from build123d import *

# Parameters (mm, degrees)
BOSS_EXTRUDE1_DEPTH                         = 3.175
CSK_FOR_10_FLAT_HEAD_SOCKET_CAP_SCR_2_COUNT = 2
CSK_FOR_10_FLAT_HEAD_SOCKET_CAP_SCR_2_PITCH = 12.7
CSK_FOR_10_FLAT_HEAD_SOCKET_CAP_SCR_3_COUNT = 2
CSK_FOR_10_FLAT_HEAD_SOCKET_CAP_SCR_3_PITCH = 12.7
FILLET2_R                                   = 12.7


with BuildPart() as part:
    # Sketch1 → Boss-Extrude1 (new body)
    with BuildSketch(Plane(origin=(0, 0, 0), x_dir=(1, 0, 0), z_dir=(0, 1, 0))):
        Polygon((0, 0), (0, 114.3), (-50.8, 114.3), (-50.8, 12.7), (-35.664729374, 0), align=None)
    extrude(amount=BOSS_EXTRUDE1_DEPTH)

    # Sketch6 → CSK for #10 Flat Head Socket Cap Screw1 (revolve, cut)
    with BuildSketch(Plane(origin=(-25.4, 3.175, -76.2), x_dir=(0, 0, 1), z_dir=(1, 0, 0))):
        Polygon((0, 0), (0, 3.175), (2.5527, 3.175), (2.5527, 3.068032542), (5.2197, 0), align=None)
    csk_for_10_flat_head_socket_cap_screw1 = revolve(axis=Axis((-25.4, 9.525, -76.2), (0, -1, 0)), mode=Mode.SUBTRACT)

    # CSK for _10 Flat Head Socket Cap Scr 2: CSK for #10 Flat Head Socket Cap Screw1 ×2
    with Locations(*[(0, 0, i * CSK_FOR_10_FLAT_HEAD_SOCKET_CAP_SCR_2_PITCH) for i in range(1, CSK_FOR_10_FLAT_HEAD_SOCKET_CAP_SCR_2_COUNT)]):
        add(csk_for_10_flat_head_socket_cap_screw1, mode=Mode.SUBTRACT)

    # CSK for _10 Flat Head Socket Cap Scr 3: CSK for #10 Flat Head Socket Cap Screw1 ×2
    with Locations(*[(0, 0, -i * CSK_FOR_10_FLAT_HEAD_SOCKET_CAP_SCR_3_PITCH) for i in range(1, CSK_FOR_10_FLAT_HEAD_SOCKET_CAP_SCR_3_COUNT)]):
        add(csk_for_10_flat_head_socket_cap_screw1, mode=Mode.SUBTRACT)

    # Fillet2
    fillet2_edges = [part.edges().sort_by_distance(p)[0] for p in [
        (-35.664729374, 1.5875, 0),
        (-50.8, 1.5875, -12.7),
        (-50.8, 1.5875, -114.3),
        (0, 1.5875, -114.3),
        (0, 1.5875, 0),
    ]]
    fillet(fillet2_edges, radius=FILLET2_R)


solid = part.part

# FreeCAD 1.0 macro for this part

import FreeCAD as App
import Part
import Sketcher

V = App.Vector
Q = App.Units.Quantity


def edges_at(feature, points):
    """Names of the edges that pass closest to the given points."""
    edges = feature.Shape.Edges
    near = lambda p: min(range(len(edges)), key=lambda i: edges[i].distToShape(Part.Vertex(*p))[0])
    return sorted({f"Edge{near(p) + 1}" for p in points})

doc = App.newDocument("Part")
body = doc.addObject("PartDesign::Body", "Body")

# Sketch on XZ plane
sketch1 = body.newObject("Sketcher::SketchObject", "Sketch")
sketch1.AttachmentSupport = (doc.getObject("XZ_Plane"), [""])
sketch1.MapMode = "FlatFace"
sketch1.addGeometry([
    Part.LineSegment(V(0, 0, 0), V(0, -114, 0)),  # 0
    Part.LineSegment(V(0, -114, 0), V(-51, -114, 0)),  # 1
    Part.LineSegment(V(-51, -114, 0), V(-51, -13, 0)),  # 2
    Part.LineSegment(V(-51, -13, 0), V(-36, 0, 0)),  # 3
    Part.LineSegment(V(-36, 0, 0), V(0, 0, 0)),  # 4
], False)
sketch1.addConstraint([
    Sketcher.Constraint("Coincident", 0, 2, 1, 1),
    Sketcher.Constraint("Coincident", 1, 2, 2, 1),
    Sketcher.Constraint("Coincident", 2, 2, 3, 1),
    Sketcher.Constraint("Coincident", 3, 2, 4, 1),
    Sketcher.Constraint("Coincident", 4, 2, 0, 1),
    Sketcher.Constraint("Vertical", 0),
    Sketcher.Constraint("Horizontal", 1),
    Sketcher.Constraint("Vertical", 2),
    Sketcher.Constraint("Horizontal", 4),
    Sketcher.Constraint("Coincident", 4, 2, -1, 1),
    Sketcher.Constraint("DistanceX", 1, 2, 1, 1, Q("2 in")),
    Sketcher.Constraint("DistanceY", 2, 1, 2, 2, Q("4 in")),
    Sketcher.Constraint("DistanceY", 0, 2, 0, 1, Q("4.5 in")),
    Sketcher.Constraint("Angle", 3, Q("40 deg")),
])
pad1 = body.newObject("PartDesign::Pad", "Pad")
pad1.Profile = sketch1
pad1.Length = Q("0.125 in")
pad1.Reversed = True

# Sketch on YZ plane
sketch2 = body.newObject("Sketcher::SketchObject", "Sketch001")
sketch2.AttachmentSupport = (doc.getObject("YZ_Plane"), [""])
sketch2.MapMode = "FlatFace"
sketch2.AttachmentOffset = App.Placement(V(0, 0, -1 * 25.4), App.Rotation())
sketch2.addGeometry([
    Part.LineSegment(V(0, -76.2, 0), V(3.17, -76.2, 0)),  # 0
    Part.LineSegment(V(3.17, -76.2, 0), V(3.17, -70.98, 0)),  # 1
    Part.LineSegment(V(3.17, -70.98, 0), V(0.11, -73.65, 0)),  # 2
    Part.LineSegment(V(0.11, -73.65, 0), V(0, -73.65, 0)),  # 3
    Part.LineSegment(V(0, -73.65, 0), V(0, -76.2, 0)),  # 4
], False)
sketch2.addGeometry(Part.LineSegment(V(3.17, -76.2, 0), V(0, -76.2, 0)), True)  # axis
sketch2.addConstraint([
    Sketcher.Constraint("Coincident", 0, 2, 1, 1),
    Sketcher.Constraint("Coincident", 1, 2, 2, 1),
    Sketcher.Constraint("Coincident", 2, 2, 3, 1),
    Sketcher.Constraint("Coincident", 3, 2, 4, 1),
    Sketcher.Constraint("Coincident", 4, 2, 0, 1),
    Sketcher.Constraint("Horizontal", 0),
    Sketcher.Constraint("Vertical", 1),
    Sketcher.Constraint("Horizontal", 3),
    Sketcher.Constraint("Vertical", 4),
    Sketcher.Constraint("Horizontal", 5),
    Sketcher.Constraint("Coincident", 5, 1, 0, 2),
    Sketcher.Constraint("PointOnObject", 3, 2, -2),
    Sketcher.Constraint("PointOnObject", 5, 2, -2),
    Sketcher.Constraint("DistanceY", 0, 2, -1, 1, Q("3 in")),
    Sketcher.Constraint("Angle", 2, Q("-139 deg")),
    Sketcher.Constraint("DistanceX", 0, 1, 0, 2, Q("0.125 in")),
    Sketcher.Constraint("DistanceY", 1, 1, 1, 2, Q("0.2055 in")),
    Sketcher.Constraint("DistanceY", 4, 2, 4, 1, Q("0.1005 in")),
])
groove = body.newObject("PartDesign::Groove", "Groove")
groove.Profile = sketch2
groove.ReferenceAxis = (sketch2, ["Axis0"])
groove.Angle = 360
doc.recompute()

linearpattern = body.newObject("PartDesign::LinearPattern", "LinearPattern")
linearpattern.Originals = [groove]
linearpattern.Direction = (doc.getObject("Z_Axis"), [""])
linearpattern.Mode = "offset"
linearpattern.Offset = Q("0.5 in")
linearpattern.Occurrences = 2
body.Tip = linearpattern
doc.recompute()

linearpattern2 = body.newObject("PartDesign::LinearPattern", "LinearPattern001")
linearpattern2.Originals = [groove]
linearpattern2.Direction = (doc.getObject("Z_Axis"), [""])
linearpattern2.Mode = "offset"
linearpattern2.Offset = Q("0.5 in")
linearpattern2.Occurrences = 2
linearpattern2.Reversed = True
body.Tip = linearpattern2
doc.recompute()

fillet = body.newObject("PartDesign::Fillet", "Fillet")
fillet.Base = (linearpattern2, edges_at(linearpattern2, [
    (-35.665, 1.587, 0),
    (-50.8, 1.587, -12.7),
    (-50.8, 1.587, -114.3),
    (0, 1.587, -114.3),
    (0, 1.587, 0),
]))
fillet.Radius = Q("0.5 in")

doc.recompute()
